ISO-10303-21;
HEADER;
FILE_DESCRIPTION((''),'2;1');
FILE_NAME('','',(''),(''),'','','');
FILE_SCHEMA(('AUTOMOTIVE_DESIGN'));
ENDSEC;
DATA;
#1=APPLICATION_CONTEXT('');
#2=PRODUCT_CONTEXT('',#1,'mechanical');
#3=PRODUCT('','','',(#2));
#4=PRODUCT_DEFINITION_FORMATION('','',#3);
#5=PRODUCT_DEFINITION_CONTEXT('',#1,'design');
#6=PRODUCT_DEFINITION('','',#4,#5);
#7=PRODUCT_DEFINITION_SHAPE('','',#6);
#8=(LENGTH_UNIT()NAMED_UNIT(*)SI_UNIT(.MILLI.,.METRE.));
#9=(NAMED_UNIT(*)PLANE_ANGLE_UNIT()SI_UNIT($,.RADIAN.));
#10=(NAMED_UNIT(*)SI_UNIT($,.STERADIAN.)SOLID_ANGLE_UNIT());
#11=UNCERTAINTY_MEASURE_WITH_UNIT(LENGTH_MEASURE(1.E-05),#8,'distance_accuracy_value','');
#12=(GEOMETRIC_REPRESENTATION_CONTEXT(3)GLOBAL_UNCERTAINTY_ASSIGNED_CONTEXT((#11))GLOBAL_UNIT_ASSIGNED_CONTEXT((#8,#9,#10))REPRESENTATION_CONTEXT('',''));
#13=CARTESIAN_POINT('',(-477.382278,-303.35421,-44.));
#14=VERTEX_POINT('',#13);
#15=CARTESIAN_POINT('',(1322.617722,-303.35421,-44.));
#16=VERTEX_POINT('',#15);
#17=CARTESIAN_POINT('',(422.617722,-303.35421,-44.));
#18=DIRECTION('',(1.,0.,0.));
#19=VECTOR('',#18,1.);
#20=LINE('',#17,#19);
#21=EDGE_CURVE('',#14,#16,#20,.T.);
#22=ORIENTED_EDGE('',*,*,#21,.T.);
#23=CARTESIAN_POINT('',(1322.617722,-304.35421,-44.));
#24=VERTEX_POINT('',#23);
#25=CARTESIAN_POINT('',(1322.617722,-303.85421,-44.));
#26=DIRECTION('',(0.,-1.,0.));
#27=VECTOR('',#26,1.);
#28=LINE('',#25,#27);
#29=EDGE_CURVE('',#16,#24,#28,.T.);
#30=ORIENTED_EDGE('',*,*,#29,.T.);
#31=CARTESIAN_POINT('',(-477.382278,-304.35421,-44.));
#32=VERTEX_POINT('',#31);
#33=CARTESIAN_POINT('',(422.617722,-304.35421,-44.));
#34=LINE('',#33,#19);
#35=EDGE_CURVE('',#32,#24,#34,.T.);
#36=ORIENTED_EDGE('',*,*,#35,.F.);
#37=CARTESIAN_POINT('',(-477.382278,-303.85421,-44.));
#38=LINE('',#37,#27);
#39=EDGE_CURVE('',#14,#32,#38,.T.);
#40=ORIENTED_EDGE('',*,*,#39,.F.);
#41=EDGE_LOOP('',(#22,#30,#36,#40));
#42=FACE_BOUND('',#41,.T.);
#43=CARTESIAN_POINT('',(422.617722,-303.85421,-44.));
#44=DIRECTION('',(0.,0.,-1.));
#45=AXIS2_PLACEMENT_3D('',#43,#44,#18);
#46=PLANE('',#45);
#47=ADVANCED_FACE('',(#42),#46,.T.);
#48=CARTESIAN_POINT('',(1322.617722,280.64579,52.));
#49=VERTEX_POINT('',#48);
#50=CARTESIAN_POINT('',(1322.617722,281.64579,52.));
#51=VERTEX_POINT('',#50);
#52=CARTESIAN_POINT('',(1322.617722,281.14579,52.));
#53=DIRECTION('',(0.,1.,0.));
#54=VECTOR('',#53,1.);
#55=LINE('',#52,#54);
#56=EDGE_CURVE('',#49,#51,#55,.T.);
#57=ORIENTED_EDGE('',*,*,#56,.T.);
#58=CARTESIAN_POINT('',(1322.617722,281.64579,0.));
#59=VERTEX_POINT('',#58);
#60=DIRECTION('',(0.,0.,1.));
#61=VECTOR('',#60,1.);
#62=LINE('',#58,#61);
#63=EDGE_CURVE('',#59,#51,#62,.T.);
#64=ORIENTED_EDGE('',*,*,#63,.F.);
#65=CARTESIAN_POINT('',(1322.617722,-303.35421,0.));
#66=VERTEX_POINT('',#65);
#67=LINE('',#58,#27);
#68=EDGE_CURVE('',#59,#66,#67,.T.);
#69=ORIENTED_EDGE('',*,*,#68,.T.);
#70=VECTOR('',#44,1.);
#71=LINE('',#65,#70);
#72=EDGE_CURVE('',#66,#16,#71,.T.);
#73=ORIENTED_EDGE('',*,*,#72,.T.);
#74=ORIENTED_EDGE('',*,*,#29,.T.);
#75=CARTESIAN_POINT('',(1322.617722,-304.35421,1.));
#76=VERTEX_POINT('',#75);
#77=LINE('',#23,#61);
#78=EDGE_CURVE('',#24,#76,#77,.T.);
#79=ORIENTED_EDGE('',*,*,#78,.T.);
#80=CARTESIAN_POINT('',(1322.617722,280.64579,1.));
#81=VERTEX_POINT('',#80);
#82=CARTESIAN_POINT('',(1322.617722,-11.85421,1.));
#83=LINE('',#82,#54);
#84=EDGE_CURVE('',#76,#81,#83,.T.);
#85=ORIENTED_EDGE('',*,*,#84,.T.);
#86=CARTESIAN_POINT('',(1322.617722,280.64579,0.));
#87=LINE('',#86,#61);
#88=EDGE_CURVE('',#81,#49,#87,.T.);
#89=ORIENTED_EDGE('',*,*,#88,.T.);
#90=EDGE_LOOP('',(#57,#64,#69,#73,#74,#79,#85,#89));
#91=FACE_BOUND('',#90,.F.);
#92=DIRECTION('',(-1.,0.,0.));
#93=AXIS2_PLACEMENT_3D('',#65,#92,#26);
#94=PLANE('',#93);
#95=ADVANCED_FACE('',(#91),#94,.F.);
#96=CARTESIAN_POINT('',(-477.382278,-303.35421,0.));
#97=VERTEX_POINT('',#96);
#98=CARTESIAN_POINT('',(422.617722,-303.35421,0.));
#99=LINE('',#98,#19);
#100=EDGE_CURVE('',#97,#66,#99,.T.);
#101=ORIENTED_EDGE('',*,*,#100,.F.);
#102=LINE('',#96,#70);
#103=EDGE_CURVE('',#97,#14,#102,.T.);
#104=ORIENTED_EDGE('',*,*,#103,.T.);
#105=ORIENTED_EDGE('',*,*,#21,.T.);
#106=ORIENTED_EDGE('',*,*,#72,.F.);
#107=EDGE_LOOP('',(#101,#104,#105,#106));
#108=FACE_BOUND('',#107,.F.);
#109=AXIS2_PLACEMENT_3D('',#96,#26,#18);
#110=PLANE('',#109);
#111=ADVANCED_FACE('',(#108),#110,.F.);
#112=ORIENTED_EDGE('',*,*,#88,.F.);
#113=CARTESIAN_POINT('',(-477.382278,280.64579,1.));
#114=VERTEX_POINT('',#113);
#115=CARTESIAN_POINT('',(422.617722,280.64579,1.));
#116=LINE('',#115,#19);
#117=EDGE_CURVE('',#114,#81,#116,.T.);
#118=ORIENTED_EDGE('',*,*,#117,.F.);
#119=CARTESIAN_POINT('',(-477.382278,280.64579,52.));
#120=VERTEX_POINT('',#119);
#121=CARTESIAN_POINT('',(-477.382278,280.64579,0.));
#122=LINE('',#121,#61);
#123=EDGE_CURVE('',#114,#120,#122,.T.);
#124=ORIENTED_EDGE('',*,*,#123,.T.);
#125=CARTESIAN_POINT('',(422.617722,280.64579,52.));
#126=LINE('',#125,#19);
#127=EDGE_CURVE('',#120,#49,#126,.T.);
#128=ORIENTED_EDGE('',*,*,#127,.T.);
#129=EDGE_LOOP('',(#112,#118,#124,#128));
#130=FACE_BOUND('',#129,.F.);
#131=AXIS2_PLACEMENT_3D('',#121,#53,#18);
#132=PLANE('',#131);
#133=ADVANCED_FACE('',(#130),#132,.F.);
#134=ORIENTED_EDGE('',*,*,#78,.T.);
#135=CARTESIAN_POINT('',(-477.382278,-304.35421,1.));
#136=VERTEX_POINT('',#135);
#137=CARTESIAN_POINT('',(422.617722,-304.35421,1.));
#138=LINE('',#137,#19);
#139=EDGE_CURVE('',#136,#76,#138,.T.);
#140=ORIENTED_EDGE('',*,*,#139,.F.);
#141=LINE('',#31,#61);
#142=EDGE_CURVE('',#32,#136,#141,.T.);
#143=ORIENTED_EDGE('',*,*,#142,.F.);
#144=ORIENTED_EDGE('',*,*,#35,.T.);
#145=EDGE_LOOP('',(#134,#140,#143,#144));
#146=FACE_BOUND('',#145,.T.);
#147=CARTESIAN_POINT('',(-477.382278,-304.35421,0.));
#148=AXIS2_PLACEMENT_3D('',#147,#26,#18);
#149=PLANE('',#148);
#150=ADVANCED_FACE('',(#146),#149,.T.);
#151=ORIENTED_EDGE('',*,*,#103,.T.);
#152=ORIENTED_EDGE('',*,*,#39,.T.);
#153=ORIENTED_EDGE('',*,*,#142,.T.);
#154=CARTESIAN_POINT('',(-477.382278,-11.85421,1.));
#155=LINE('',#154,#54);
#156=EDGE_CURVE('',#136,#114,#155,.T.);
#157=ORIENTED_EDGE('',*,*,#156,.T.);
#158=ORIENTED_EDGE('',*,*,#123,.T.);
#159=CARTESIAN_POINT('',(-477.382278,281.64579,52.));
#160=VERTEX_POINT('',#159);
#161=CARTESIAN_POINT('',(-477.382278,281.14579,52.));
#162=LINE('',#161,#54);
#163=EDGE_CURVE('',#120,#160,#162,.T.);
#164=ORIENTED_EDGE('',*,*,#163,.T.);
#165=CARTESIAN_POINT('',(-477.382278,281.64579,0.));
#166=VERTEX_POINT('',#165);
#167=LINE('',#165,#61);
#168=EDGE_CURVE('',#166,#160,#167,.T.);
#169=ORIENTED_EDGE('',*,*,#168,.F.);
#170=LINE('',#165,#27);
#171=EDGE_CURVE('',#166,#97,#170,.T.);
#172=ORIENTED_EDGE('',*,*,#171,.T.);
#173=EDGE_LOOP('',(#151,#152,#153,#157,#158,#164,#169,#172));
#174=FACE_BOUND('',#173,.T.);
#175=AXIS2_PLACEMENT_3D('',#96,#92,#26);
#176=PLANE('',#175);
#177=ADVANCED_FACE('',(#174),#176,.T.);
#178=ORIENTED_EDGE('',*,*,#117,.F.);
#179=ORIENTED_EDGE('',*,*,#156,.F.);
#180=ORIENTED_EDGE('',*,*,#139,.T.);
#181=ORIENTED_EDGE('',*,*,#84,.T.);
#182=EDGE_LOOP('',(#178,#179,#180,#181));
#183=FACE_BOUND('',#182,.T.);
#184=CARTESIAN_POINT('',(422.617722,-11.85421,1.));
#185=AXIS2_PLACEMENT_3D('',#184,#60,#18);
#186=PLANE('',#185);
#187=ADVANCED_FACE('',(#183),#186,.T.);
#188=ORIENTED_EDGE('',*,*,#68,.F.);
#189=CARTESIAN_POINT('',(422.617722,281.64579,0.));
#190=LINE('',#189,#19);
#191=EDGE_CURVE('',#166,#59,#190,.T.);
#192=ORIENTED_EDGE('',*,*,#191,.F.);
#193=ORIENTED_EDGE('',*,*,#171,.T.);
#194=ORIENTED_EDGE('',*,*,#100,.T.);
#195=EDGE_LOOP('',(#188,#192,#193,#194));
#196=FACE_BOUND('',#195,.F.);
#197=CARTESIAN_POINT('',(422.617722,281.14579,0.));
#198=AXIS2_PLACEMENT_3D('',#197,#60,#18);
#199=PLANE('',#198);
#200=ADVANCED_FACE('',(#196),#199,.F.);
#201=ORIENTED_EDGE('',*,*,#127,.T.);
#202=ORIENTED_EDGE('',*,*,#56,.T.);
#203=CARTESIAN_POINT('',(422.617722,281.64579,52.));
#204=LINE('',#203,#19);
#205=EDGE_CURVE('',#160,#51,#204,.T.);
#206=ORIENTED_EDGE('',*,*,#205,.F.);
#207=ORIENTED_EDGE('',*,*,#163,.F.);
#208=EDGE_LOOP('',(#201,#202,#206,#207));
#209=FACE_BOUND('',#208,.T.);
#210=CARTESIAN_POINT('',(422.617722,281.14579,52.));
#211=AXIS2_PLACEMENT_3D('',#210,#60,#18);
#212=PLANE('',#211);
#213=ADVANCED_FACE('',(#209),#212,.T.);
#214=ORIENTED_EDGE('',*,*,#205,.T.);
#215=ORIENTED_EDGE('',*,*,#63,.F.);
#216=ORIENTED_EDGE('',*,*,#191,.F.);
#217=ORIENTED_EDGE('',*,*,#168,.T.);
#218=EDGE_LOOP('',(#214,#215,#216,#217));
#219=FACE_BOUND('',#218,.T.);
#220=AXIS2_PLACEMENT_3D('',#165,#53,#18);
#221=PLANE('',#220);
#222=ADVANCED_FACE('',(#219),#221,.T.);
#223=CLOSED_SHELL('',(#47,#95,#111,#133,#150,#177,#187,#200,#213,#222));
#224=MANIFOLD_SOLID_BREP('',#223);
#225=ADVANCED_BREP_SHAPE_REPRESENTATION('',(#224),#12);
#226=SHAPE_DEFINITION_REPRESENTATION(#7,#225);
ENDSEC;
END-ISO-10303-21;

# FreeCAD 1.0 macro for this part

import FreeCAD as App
import Part
import Sketcher
Q = App.Units.Quantity


def add_polygon(sketch, points):
    """Adds a closed chain of lines whose ends are joined by coincident constraints."""
    first, n = sketch.GeometryCount, len(points)
    for a, b in zip(points, points[1:] + points[:1]):
        sketch.addGeometry(Part.LineSegment(App.Vector(*a, 0), App.Vector(*b, 0)), False)
    for i in range(n):
        sketch.addConstraint(Sketcher.Constraint("Coincident", first + i, 2, first + (i + 1) % n, 1))

doc = App.newDocument("Part")
body = doc.addObject("PartDesign::Body", "Body")

# Sketch on XY plane
sketch1 = body.newObject("Sketcher::SketchObject", "Sketch")
sketch1.AttachmentSupport = (doc.getObject("XY_Plane"), [""])
sketch1.MapMode = "FlatFace"
add_polygon(sketch1, [(-477.382278, 280.64579), (-477.382278, -304.35421), (1322.617722, -304.35421), (1322.617722, 280.64579)])  # lines 0-3
sketch1.addConstraint([
    Sketcher.Constraint("Vertical", 0),
    Sketcher.Constraint("Horizontal", 1),
    Sketcher.Constraint("Vertical", 2),
    Sketcher.Constraint("Horizontal", 3),
    Sketcher.Constraint("DistanceX", 1, 1, 1, 2, Q("1800 mm")),
    Sketcher.Constraint("DistanceY", 0, 2, 0, 1, Q("585 mm")),
    Sketcher.Constraint("DistanceX", 0, 2, -1, 1, Q("477.382278 mm")),
    Sketcher.Constraint("DistanceY", 0, 2, -1, 1, Q("304.35421 mm")),
])
pad1 = body.newObject("PartDesign::Pad", "Pad")
pad1.Profile = sketch1
pad1.Length = 1

# Sketch on XY plane
sketch2 = body.newObject("Sketcher::SketchObject", "Sketch001")
sketch2.AttachmentSupport = (doc.getObject("XY_Plane"), [""])
sketch2.MapMode = "FlatFace"
add_polygon(sketch2, [(-477.382278, 281.64579), (-477.382278, 280.64579), (1322.617722, 280.64579), (1322.617722, 281.64579)])  # lines 0-3
sketch2.addConstraint([
    Sketcher.Constraint("Vertical", 0),
    Sketcher.Constraint("Horizontal", 1),
    Sketcher.Constraint("Vertical", 2),
    Sketcher.Constraint("Horizontal", 3),
    Sketcher.Constraint("DistanceX", 1, 1, 1, 2, Q("1800 mm")),
    Sketcher.Constraint("DistanceY", 0, 2, 0, 1, Q("1 mm")),
    Sketcher.Constraint("DistanceX", 0, 2, -1, 1, Q("477.382278 mm")),
    Sketcher.Constraint("DistanceY", -1, 1, 0, 2, Q("280.64579 mm")),
])
pad2 = body.newObject("PartDesign::Pad", "Pad001")
pad2.Profile = sketch2
pad2.Length = 52

# Sketch on XY plane
sketch3 = body.newObject("Sketcher::SketchObject", "Sketch002")
sketch3.AttachmentSupport = (doc.getObject("XY_Plane"), [""])
sketch3.MapMode = "FlatFace"
add_polygon(sketch3, [(-477.382278, -304.35421), (-477.382278, -303.35421), (1322.617722, -303.35421), (1322.617722, -304.35421)])  # lines 0-3
sketch3.addConstraint([
    Sketcher.Constraint("Vertical", 0),
    Sketcher.Constraint("Horizontal", 1),
    Sketcher.Constraint("Vertical", 2),
    Sketcher.Constraint("Horizontal", 3),
    Sketcher.Constraint("DistanceX", 1, 1, 1, 2, Q("1800 mm")),
    Sketcher.Constraint("DistanceY", 0, 1, 0, 2, Q("1 mm")),
    Sketcher.Constraint("DistanceX", 0, 2, -1, 1, Q("477.382278 mm")),
    Sketcher.Constraint("DistanceY", 0, 2, -1, 1, Q("303.35421 mm")),
])
pad3 = body.newObject("PartDesign::Pad", "Pad002")
pad3.Profile = sketch3
pad3.Length = 44
pad3.Reversed = True

doc.recompute()
